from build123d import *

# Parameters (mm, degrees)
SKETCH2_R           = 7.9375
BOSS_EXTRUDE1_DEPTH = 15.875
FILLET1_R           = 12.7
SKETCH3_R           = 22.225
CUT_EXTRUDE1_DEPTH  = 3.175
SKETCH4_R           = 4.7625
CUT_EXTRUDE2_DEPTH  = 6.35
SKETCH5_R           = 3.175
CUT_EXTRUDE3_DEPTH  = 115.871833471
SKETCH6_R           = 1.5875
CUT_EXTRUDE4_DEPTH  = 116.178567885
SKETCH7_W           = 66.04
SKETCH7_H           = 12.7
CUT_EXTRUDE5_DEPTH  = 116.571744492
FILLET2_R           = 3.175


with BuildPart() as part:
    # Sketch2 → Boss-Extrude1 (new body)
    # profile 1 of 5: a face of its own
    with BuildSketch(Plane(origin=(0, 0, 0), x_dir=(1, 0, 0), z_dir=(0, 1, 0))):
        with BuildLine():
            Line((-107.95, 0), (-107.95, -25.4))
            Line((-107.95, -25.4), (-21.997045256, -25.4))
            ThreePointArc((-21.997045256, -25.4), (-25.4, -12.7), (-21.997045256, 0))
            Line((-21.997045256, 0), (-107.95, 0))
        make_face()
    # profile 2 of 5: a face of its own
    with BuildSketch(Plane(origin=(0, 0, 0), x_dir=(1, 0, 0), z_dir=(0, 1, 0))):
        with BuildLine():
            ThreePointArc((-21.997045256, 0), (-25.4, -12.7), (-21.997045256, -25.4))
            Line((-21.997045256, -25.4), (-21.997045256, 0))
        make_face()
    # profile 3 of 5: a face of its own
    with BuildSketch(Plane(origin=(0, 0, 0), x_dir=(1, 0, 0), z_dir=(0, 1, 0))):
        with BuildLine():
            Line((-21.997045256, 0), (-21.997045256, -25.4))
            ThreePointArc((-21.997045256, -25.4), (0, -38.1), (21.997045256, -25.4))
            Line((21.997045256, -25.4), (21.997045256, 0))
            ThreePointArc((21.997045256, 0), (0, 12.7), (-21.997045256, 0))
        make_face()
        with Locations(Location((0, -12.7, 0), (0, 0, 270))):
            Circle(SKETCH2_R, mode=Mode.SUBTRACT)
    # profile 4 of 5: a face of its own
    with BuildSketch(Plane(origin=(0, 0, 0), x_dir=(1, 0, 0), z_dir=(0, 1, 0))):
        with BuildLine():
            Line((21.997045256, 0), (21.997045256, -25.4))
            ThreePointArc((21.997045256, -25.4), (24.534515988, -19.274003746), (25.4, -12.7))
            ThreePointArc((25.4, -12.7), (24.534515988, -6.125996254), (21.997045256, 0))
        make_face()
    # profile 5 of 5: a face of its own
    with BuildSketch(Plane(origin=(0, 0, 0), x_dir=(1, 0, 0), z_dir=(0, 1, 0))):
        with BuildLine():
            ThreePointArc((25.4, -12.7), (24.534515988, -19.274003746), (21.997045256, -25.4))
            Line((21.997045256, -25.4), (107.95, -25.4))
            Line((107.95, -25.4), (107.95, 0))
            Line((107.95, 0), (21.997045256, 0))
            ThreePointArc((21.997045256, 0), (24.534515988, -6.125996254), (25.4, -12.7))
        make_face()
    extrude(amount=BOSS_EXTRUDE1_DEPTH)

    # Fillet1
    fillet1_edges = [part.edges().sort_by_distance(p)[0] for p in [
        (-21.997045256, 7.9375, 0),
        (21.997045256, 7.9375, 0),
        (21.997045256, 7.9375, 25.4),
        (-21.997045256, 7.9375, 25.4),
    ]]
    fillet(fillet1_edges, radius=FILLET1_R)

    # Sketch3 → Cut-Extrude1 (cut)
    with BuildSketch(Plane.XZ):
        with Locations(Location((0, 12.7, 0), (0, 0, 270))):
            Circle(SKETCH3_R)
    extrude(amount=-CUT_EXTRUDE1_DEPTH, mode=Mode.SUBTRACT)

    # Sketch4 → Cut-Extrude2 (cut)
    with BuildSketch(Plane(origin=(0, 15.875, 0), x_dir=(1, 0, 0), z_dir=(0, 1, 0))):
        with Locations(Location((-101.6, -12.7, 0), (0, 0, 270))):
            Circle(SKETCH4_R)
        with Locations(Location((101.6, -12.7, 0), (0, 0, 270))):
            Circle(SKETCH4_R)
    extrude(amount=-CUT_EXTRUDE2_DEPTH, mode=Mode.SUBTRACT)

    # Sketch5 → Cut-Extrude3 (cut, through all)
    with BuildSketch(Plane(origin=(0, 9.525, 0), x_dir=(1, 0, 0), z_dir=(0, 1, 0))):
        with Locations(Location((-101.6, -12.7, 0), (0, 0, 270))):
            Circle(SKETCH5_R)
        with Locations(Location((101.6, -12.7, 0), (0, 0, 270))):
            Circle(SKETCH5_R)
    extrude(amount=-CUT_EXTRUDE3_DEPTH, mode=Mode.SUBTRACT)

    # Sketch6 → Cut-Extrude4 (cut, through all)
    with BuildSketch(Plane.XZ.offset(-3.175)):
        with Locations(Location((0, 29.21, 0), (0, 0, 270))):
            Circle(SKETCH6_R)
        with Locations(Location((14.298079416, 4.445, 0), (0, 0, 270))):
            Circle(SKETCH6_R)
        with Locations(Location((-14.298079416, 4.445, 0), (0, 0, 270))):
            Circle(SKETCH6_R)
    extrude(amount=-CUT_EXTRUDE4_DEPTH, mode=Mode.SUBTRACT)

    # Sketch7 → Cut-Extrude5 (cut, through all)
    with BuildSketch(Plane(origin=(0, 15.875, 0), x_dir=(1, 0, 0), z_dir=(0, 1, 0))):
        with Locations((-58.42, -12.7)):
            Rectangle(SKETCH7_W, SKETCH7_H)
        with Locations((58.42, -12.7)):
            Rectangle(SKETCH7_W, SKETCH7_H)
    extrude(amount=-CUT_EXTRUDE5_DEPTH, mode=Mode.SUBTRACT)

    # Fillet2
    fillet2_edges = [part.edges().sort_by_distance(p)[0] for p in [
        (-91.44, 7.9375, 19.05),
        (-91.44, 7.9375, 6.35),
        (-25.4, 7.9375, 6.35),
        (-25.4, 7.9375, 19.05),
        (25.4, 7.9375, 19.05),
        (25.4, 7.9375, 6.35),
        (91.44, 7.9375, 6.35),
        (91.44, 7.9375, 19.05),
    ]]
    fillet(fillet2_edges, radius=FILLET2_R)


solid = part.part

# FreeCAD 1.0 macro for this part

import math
import FreeCAD as App
import Part
import Sketcher
from FreeCAD import Vector
Q = App.Units.Quantity


def edges_at(feature, points):
    """Names of the edges that pass closest to the given points."""
    edges = feature.Shape.Edges
    near = lambda p: min(range(len(edges)), key=lambda i: edges[i].distToShape(Part.Vertex(*p))[0])
    return sorted({f"Edge{near(p) + 1}" for p in points})


def add_polygon(sketch, points):
    """Adds a closed chain of lines whose ends are joined by coincident constraints."""
    first, n = sketch.GeometryCount, len(points)
    for a, b in zip(points, points[1:] + points[:1]):
        sketch.addGeometry(Part.LineSegment(App.Vector(*a, 0), App.Vector(*b, 0)), False)
    for i in range(n):
        sketch.addConstraint(Sketcher.Constraint("Coincident", first + i, 2, first + (i + 1) % n, 1))

doc = App.newDocument("Part")
body = doc.addObject("PartDesign::Body", "Body")

# Sketch on XZ plane
sketch1 = body.newObject("Sketcher::SketchObject", "Sketch")
sketch1.AttachmentSupport = (doc.getObject("XZ_Plane"), [""])
sketch1.MapMode = "FlatFace"
sketch1.addGeometry(Part.LineSegment(Vector(-107.95, 0, 0), Vector(-107.95, 25.4, 0)), False)
sketch1.addGeometry(Part.LineSegment(Vector(-107.95, 25.4, 0), Vector(-21.997045, 25.4, 0)), False)
sketch1.addGeometry(Part.ArcOfCircle(Part.Circle(Vector(0, 12.7, 0), Vector(0, 0, 1), 25.4), math.radians(30), math.radians(150)), False)
sketch1.addGeometry(Part.LineSegment(Vector(21.997045, 25.4, 0), Vector(107.95, 25.4, 0)), False)
sketch1.addGeometry(Part.LineSegment(Vector(107.95, 25.4, 0), Vector(107.95, 0, 0)), False)
sketch1.addGeometry(Part.LineSegment(Vector(107.95, 0, 0), Vector(21.997045, 0, 0)), False)
sketch1.addGeometry(Part.ArcOfCircle(Part.Circle(Vector(0, 12.7, 0), Vector(0, 0, 1), 25.4), math.radians(-150), math.radians(-30)), False)
sketch1.addGeometry(Part.LineSegment(Vector(-21.997045, 0, 0), Vector(-107.95, 0, 0)), False)
sketch1.addGeometry(Part.Circle(Vector(0, 12.7, 0), Vector(0, 0, 1), 7.9375), False)
sketch1.addConstraint(Sketcher.Constraint("Coincident", 0, 2, 1, 1))
sketch1.addConstraint(Sketcher.Constraint("Coincident", 1, 2, 2, 2))
sketch1.addConstraint(Sketcher.Constraint("Coincident", 2, 1, 3, 1))
sketch1.addConstraint(Sketcher.Constraint("Coincident", 3, 2, 4, 1))
sketch1.addConstraint(Sketcher.Constraint("Coincident", 4, 2, 5, 1))
sketch1.addConstraint(Sketcher.Constraint("Coincident", 5, 2, 6, 2))
sketch1.addConstraint(Sketcher.Constraint("Coincident", 6, 1, 7, 1))
sketch1.addConstraint(Sketcher.Constraint("Coincident", 7, 2, 0, 1))
sketch1.addConstraint(Sketcher.Constraint("Vertical", 0))
sketch1.addConstraint(Sketcher.Constraint("Horizontal", 1))
sketch1.addConstraint(Sketcher.Constraint("Horizontal", 3))
sketch1.addConstraint(Sketcher.Constraint("Vertical", 4))
sketch1.addConstraint(Sketcher.Constraint("Horizontal", 5))
sketch1.addConstraint(Sketcher.Constraint("Horizontal", 7))
sketch1.addConstraint(Sketcher.Constraint("Coincident", 6, 3, 2, 3))
sketch1.addConstraint(Sketcher.Constraint("Coincident", 8, 3, 2, 3))
sketch1.addConstraint(Sketcher.Constraint("Equal", 2, 6))
sketch1.addConstraint(Sketcher.Constraint("Symmetric", 5, 2, 6, 1, -1, 1))
sketch1.addConstraint(Sketcher.Constraint("Symmetric", 1, 2, 2, 1, -2))
sketch1.addConstraint(Sketcher.Constraint("Vertical", 2, 1, 5, 2))
sketch1.addConstraint(Sketcher.Constraint("Equal", 1, 3))
sketch1.addConstraint(Sketcher.Constraint("Radius", 2, Q("1 in")))
sketch1.addConstraint(Sketcher.Constraint("DistanceY", 0, 1, 0, 2, Q("1 in")))
sketch1.addConstraint(Sketcher.Constraint("Diameter", 8, Q("0.625 in")))
sketch1.addConstraint(Sketcher.Constraint("DistanceX", 0, 2, -1, 1, Q("4.25 in")))
pad1 = body.newObject("PartDesign::Pad", "Pad")
pad1.Profile = sketch1
pad1.Length = Q("0.625 in")
pad1.Reversed = True
doc.recompute()

fillet = body.newObject("PartDesign::Fillet", "Fillet")
fillet.Base = (pad1, edges_at(pad1, [
    (-21.997, 7.938, 0),
    (21.997, 7.938, 0),
    (21.997, 7.938, 25.4),
    (-21.997, 7.938, 25.4),
]))
fillet.Radius = Q("0.5 in")

# Sketch on XZ plane
sketch2 = body.newObject("Sketcher::SketchObject", "Sketch001")
sketch2.AttachmentSupport = (doc.getObject("XZ_Plane"), [""])
sketch2.MapMode = "FlatFace"
sketch2.addGeometry(Part.Circle(Vector(0, 12.7, 0), Vector(0, 0, 1), 22.225), False)
sketch2.addConstraint(Sketcher.Constraint("PointOnObject", 0, 3, -2))
sketch2.addConstraint(Sketcher.Constraint("Diameter", 0, Q("1.75 in")))
sketch2.addConstraint(Sketcher.Constraint("DistanceY", -1, 1, 0, 3, Q("0.5 in")))
pocket1 = body.newObject("PartDesign::Pocket", "Pocket")
pocket1.Profile = sketch2
pocket1.Length = Q("0.125 in")

# Sketch on XZ plane
sketch3 = body.newObject("Sketcher::SketchObject", "Sketch002")
sketch3.AttachmentSupport = (doc.getObject("XZ_Plane"), [""])
sketch3.MapMode = "FlatFace"
sketch3.AttachmentOffset = App.Placement(Vector(0, 0, -0.625 * 25.4), App.Rotation())
sketch3.addGeometry(Part.Circle(Vector(-101.6, 12.7, 0), Vector(0, 0, 1), 4.7625), False)
sketch3.addGeometry(Part.Circle(Vector(101.6, 12.7, 0), Vector(0, 0, 1), 4.7625), False)
sketch3.addConstraint(Sketcher.Constraint("Equal", 0, 1))
sketch3.addConstraint(Sketcher.Constraint("Symmetric", 0, 3, 1, 3, -2))
sketch3.addConstraint(Sketcher.Constraint("Diameter", 0, Q("0.375 in")))
sketch3.addConstraint(Sketcher.Constraint("DistanceX", 0, 3, -1, 1, Q("4 in")))
sketch3.addConstraint(Sketcher.Constraint("DistanceY", -1, 1, 0, 3, Q("0.5 in")))
pocket2 = body.newObject("PartDesign::Pocket", "Pocket001")
pocket2.Profile = sketch3
pocket2.Length = Q("0.25 in")
pocket2.Reversed = True

# Sketch on XZ plane
sketch4 = body.newObject("Sketcher::SketchObject", "Sketch003")
sketch4.AttachmentSupport = (doc.getObject("XZ_Plane"), [""])
sketch4.MapMode = "FlatFace"
sketch4.AttachmentOffset = App.Placement(Vector(0, 0, -0.375 * 25.4), App.Rotation())
sketch4.addGeometry(Part.Circle(Vector(-101.6, 12.7, 0), Vector(0, 0, 1), 3.175), False)
sketch4.addGeometry(Part.Circle(Vector(101.6, 12.7, 0), Vector(0, 0, 1), 3.175), False)
sketch4.addConstraint(Sketcher.Constraint("Equal", 0, 1))
sketch4.addConstraint(Sketcher.Constraint("Symmetric", 0, 3, 1, 3, -2))
sketch4.addConstraint(Sketcher.Constraint("Diameter", 0, Q("0.25 in")))
sketch4.addConstraint(Sketcher.Constraint("DistanceX", 0, 3, -1, 1, Q("4 in")))
sketch4.addConstraint(Sketcher.Constraint("DistanceY", -1, 1, 0, 3, Q("0.5 in")))
pocket3 = body.newObject("PartDesign::Pocket", "Pocket002")
pocket3.Profile = sketch4
pocket3.Type = "ThroughAll"
pocket3.Reversed = True

# Sketch on XZ plane
sketch5 = body.newObject("Sketcher::SketchObject", "Sketch004")
sketch5.AttachmentSupport = (doc.getObject("XZ_Plane"), [""])
sketch5.MapMode = "FlatFace"
sketch5.AttachmentOffset = App.Placement(Vector(0, 0, -0.125 * 25.4), App.Rotation())
sketch5.addGeometry(Part.Circle(Vector(0, 29.21, 0), Vector(0, 0, 1), 1.5875), False)
sketch5.addGeometry(Part.Circle(Vector(14.298079, 4.445, 0), Vector(0, 0, 1), 1.5875), False)
sketch5.addGeometry(Part.Circle(Vector(-14.298079, 4.445, 0), Vector(0, 0, 1), 1.5875), False)
sketch5.addConstraint(Sketcher.Constraint("Equal", 0, 1))
sketch5.addConstraint(Sketcher.Constraint("Equal", 1, 2))
sketch5.addConstraint(Sketcher.Constraint("Symmetric", 1, 3, 2, 3, -2))
sketch5.addConstraint(Sketcher.Constraint("PointOnObject", 0, 3, -2))
sketch5.addConstraint(Sketcher.Constraint("Diameter", 0, Q("0.125 in")))
sketch5.addConstraint(Sketcher.Constraint("DistanceY", -1, 1, 0, 3, Q("1.15 in")))
sketch5.addConstraint(Sketcher.Constraint("DistanceY", -1, 1, 1, 3, Q("0.175 in")))
sketch5.addConstraint(Sketcher.Constraint("DistanceX", -1, 1, 1, 3, Q("14.298079 mm")))
pocket4 = body.newObject("PartDesign::Pocket", "Pocket003")
pocket4.Profile = sketch5
pocket4.Type = "ThroughAll"

# Sketch on XZ plane
sketch6 = body.newObject("Sketcher::SketchObject", "Sketch005")
sketch6.AttachmentSupport = (doc.getObject("XZ_Plane"), [""])
sketch6.MapMode = "FlatFace"
sketch6.AttachmentOffset = App.Placement(Vector(0, 0, -0.625 * 25.4), App.Rotation())
add_polygon(sketch6, [(-91.44, 6.35), (-91.44, 19.05), (-25.4, 19.05), (-25.4, 6.35)])  # lines 0-3
add_polygon(sketch6, [(25.4, 6.35), (25.4, 19.05), (91.44, 19.05), (91.44, 6.35)])  # lines 4-7
sketch6.addConstraint(Sketcher.Constraint("Vertical", 0))
sketch6.addConstraint(Sketcher.Constraint("Horizontal", 1))
sketch6.addConstraint(Sketcher.Constraint("Vertical", 2))
sketch6.addConstraint(Sketcher.Constraint("Horizontal", 3))
sketch6.addConstraint(Sketcher.Constraint("Vertical", 4))
sketch6.addConstraint(Sketcher.Constraint("Horizontal", 5))
sketch6.addConstraint(Sketcher.Constraint("Vertical", 6))
sketch6.addConstraint(Sketcher.Constraint("Horizontal", 7))
sketch6.addConstraint(Sketcher.Constraint("Symmetric", 1, 2, 4, 2, -2))
sketch6.addConstraint(Sketcher.Constraint("Symmetric", 3, 2, 6, 2, -2))
sketch6.addConstraint(Sketcher.Constraint("DistanceX", 1, 1, 1, 2, Q("2.6 in")))
sketch6.addConstraint(Sketcher.Constraint("DistanceY", 0, 1, 0, 2, Q("0.5 in")))
sketch6.addConstraint(Sketcher.Constraint("DistanceX", 1, 2, -1, 1, Q("1 in")))
sketch6.addConstraint(Sketcher.Constraint("DistanceY", -1, 1, 0, 2, Q("0.75 in")))
pocket5 = body.newObject("PartDesign::Pocket", "Pocket004")
pocket5.Profile = sketch6
pocket5.Type = "ThroughAll"
pocket5.Reversed = True
doc.recompute()

fillet2 = body.newObject("PartDesign::Fillet", "Fillet001")
fillet2.Base = (pocket5, edges_at(pocket5, [
    (-91.44, 7.938, 19.05),
    (-91.44, 7.938, 6.35),
    (-25.4, 7.938, 6.35),
    (-25.4, 7.938, 19.05),
    (25.4, 7.938, 19.05),
    (25.4, 7.938, 6.35),
    (91.44, 7.938, 6.35),
    (91.44, 7.938, 19.05),
]))
fillet2.Radius = Q("0.125 in")

doc.recompute()
